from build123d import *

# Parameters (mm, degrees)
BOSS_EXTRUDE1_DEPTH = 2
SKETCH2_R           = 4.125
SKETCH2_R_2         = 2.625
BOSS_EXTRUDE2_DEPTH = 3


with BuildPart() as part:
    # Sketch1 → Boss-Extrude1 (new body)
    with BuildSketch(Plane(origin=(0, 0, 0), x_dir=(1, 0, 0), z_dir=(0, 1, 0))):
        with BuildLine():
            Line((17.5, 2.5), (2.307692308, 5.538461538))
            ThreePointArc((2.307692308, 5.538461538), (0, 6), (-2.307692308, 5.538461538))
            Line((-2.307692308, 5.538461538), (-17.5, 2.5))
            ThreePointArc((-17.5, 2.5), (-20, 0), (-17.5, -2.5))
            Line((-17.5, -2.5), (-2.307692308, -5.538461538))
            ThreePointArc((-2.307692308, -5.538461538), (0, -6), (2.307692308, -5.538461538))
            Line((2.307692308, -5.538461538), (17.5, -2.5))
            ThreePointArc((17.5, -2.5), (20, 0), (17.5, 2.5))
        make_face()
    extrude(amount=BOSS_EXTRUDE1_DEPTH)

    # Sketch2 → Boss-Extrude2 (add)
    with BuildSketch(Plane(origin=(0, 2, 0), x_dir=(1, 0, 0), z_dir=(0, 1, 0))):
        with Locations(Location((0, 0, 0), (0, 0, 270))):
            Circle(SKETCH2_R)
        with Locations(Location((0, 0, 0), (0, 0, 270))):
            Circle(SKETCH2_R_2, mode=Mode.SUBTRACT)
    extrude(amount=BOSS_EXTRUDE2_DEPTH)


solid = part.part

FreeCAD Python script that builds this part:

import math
import FreeCAD as App
import Part
import Sketcher

V = App.Vector

doc = App.newDocument("Part")
body = doc.addObject("PartDesign::Body", "Body")

# Sketch on XZ plane
sketch1 = body.newObject("Sketcher::SketchObject", "Sketch")
sketch1.AttachmentSupport = (doc.getObject("XZ_Plane"), [""])
sketch1.MapMode = "FlatFace"
sketch1.addGeometry([
    Part.LineSegment(V(17.5, -2.5, 0), V(2.3, -5.5, 0)),  # 0
    Part.ArcOfCircle(Part.Circle(V(0, 0, 0), V(0, 0, 1), 6), math.radians(-113), math.radians(-67)),  # 1
    Part.LineSegment(V(-2.3, -5.5, 0), V(-17.5, -2.5, 0)),  # 2
    Part.ArcOfCircle(Part.Circle(V(-17.5, 0, 0), V(0, 0, 1), 2.5), math.radians(90), math.radians(270)),  # 3
    Part.LineSegment(V(-17.5, 2.5, 0), V(-2.3, 5.5, 0)),  # 4
    Part.ArcOfCircle(Part.Circle(V(0, 0, 0), V(0, 0, 1), 6), math.radians(67), math.radians(113)),  # 5
    Part.LineSegment(V(2.3, 5.5, 0), V(17.5, 2.5, 0)),  # 6
    Part.ArcOfCircle(Part.Circle(V(17.5, 0, 0), V(0, 0, 1), 2.5), math.radians(-90), math.radians(90)),  # 7
], False)
sketch1.addConstraint([
    Sketcher.Constraint("Coincident", 0, 2, 1, 2),
    Sketcher.Constraint("Coincident", 1, 1, 2, 1),
    Sketcher.Constraint("Coincident", 2, 2, 3, 2),
    Sketcher.Constraint("Coincident", 3, 1, 4, 1),
    Sketcher.Constraint("Coincident", 4, 2, 5, 2),
    Sketcher.Constraint("Coincident", 5, 1, 6, 1),
    Sketcher.Constraint("Coincident", 6, 2, 7, 2),
    Sketcher.Constraint("Coincident", 7, 1, 0, 1),
    Sketcher.Constraint("Coincident", 1, 3, -1, 1),
    Sketcher.Constraint("Coincident", 5, 3, -1, 1),
    Sketcher.Constraint("Equal", 1, 5),
    Sketcher.Constraint("Equal", 3, 7),
    Sketcher.Constraint("Symmetric", 3, 3, 7, 3, -1, 1),
    Sketcher.Constraint("Symmetric", 3, 1, 6, 2, -2),
    Sketcher.Constraint("Parallel", 0, 4),
    Sketcher.Constraint("Parallel", 2, 6),
    Sketcher.Constraint("Horizontal", 0, 2, 1, 1),
    Sketcher.Constraint("Horizontal", 4, 2, 5, 1),
    Sketcher.Constraint("Vertical", 3, 3, 2, 2),
    Sketcher.Constraint("Vertical", 2, 2, 3, 1),
    Sketcher.Constraint("Radius", 1, 6.0),
    Sketcher.Constraint("Radius", 3, 2.5),
    Sketcher.Constraint("DistanceX", 3, 3, 7, 3, 35.0),
    Sketcher.Constraint("DistanceY", 0, 2, -1, 1, 5.538462),
])
pad1 = body.newObject("PartDesign::Pad", "Pad")
pad1.Profile = sketch1
pad1.Length = 2
pad1.Reversed = True

# Sketch on XZ plane
sketch2 = body.newObject("Sketcher::SketchObject", "Sketch001")
sketch2.AttachmentSupport = (doc.getObject("XZ_Plane"), [""])
sketch2.MapMode = "FlatFace"
sketch2.AttachmentOffset = App.Placement(V(0, 0, -2), App.Rotation())
sketch2.addGeometry([
    Part.Circle(V(0, 0, 0), V(0, 0, 1), 4.1),
    Part.Circle(V(0, 0, 0), V(0, 0, 1), 2.6),
], False)
sketch2.addConstraint([
    Sketcher.Constraint("Coincident", 0, 3, -1, 1),
    Sketcher.Constraint("Coincident", 1, 3, -1, 1),
    Sketcher.Constraint("Diameter", 0, 8.25),
    Sketcher.Constraint("Diameter", 1, 5.25),
])
pad2 = body.newObject("PartDesign::Pad", "Pad001")
pad2.Profile = sketch2
pad2.Length = 3
pad2.Reversed = True

doc.recompute()
